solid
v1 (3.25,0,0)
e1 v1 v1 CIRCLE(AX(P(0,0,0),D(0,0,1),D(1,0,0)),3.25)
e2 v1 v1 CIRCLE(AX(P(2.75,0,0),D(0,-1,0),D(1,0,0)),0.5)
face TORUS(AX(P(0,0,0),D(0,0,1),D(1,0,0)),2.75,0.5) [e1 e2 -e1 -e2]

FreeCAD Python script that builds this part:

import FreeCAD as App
import Part
import Sketcher

V = App.Vector

doc = App.newDocument("Part")
params = doc.addObject("Spreadsheet::Sheet", "Params")
for row, (alias, value) in enumerate([
    ("sketch1_diameter", "1 mm"),
    ("sketch2_diameter", "5.5 mm"),
], start=1):
    params.set(f"A{row}", alias)
    params.set(f"B{row}", "=" + value)
    params.setAlias(f"B{row}", alias)

body = doc.addObject("PartDesign::Body", "Body")

# Sketch on XZ plane
sketch1 = body.newObject("Sketcher::SketchObject", "Sketch")
sketch1.AttachmentSupport = (doc.getObject("XZ_Plane"), [""])
sketch1.MapMode = "FlatFace"
sketch1.addGeometry(Part.Circle(V(2.8, 0, 0), V(0, 0, 1), 0.5), False)
sketch1.addConstraint(Sketcher.Constraint("PointOnObject", 0, 3, -1))
sketch1.addConstraint(Sketcher.Constraint("Diameter", 0, 1.0))
sketch1.addConstraint(Sketcher.Constraint("DistanceX", -1, 1, 0, 3, 2.75))
sketch1.setExpression("Constraints[1]", "Params.sketch1_diameter")

# Sketch on XY plane
sketch2 = body.newObject("Sketcher::SketchObject", "Sketch001")
sketch2.AttachmentSupport = (doc.getObject("XY_Plane"), [""])
sketch2.MapMode = "FlatFace"
sketch2.addGeometry(Part.Circle(V(0, 0, 0), V(0, 0, 1), 2.8), False)
sketch2.addConstraint(Sketcher.Constraint("Coincident", 0, 3, -1, 1))
sketch2.addConstraint(Sketcher.Constraint("Diameter", 0, 5.5))
sketch2.setExpression("Constraints[1]", "Params.sketch2_diameter")
doc.recompute()

additivepipe = body.newObject("PartDesign::AdditivePipe", "AdditivePipe")
additivepipe.Profile = sketch1
additivepipe.Spine = (sketch2, ["Edge1"])

doc.recompute()
